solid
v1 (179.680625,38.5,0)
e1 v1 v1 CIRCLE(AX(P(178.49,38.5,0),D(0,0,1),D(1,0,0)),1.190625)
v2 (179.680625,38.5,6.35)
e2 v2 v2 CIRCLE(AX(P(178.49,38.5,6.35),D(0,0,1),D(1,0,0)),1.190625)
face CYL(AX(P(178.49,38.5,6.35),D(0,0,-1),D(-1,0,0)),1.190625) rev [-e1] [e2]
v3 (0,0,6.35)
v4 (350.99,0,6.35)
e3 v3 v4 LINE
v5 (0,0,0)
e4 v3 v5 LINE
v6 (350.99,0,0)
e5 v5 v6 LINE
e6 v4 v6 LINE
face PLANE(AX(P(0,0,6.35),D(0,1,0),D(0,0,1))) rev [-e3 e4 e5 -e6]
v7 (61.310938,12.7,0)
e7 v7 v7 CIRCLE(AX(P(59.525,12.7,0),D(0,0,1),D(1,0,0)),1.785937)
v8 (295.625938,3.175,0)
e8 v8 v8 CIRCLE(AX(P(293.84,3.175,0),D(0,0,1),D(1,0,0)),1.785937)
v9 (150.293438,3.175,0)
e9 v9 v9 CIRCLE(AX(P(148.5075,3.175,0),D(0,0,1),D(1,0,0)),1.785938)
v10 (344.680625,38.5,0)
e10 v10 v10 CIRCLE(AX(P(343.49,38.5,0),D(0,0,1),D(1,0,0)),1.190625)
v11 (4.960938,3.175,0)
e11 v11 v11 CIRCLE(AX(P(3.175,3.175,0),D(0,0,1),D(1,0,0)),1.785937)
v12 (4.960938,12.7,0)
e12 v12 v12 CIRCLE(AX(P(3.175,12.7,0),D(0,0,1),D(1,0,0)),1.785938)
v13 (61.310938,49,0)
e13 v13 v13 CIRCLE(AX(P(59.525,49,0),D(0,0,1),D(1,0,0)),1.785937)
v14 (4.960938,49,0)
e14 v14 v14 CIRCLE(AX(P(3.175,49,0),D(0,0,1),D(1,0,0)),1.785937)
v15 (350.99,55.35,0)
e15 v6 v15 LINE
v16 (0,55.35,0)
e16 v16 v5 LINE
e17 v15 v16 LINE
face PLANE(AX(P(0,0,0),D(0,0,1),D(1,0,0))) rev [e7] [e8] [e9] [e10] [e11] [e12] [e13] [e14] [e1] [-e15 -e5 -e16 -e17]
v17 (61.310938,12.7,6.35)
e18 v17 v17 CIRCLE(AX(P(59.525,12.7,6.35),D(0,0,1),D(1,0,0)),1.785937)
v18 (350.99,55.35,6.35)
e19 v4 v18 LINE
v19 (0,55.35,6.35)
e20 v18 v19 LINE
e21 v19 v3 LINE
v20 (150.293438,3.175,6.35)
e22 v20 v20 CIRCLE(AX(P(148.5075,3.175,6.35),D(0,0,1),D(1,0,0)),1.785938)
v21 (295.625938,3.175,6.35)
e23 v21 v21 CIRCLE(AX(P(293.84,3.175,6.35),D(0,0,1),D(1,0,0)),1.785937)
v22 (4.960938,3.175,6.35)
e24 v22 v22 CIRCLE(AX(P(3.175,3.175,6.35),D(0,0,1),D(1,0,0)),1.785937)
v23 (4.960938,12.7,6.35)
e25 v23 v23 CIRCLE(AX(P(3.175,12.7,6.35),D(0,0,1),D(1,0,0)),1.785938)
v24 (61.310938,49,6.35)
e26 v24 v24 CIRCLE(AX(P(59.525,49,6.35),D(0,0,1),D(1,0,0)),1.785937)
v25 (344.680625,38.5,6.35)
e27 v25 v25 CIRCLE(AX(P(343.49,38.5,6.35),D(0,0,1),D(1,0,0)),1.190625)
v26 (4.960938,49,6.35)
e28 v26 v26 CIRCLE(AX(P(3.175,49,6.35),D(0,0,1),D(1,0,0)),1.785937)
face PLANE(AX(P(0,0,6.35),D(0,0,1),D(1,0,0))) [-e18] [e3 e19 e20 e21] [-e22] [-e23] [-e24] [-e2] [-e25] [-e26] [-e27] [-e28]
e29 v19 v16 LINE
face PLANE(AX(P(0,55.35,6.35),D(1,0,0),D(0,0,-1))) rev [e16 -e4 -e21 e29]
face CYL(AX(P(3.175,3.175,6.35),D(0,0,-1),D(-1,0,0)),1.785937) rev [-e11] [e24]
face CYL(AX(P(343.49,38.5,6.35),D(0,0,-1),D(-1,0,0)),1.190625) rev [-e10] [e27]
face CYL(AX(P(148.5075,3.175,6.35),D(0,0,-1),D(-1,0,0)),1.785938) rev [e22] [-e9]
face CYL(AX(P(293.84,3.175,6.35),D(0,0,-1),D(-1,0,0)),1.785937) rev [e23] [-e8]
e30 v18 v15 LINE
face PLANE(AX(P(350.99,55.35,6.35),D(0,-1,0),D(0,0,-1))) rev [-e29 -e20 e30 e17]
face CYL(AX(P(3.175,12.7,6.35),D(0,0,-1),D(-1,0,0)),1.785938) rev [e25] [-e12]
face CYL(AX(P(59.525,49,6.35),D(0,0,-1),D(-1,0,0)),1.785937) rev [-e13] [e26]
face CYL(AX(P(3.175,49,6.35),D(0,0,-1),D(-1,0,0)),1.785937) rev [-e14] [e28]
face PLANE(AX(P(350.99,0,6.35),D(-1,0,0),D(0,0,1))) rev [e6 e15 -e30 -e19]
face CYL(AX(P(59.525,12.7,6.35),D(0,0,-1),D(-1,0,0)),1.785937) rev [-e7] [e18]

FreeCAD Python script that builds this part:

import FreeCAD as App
import Part
import Sketcher
Q = App.Units.Quantity


def add_polygon(sketch, points):
    """Adds a closed chain of lines whose ends are joined by coincident constraints."""
    first, n = sketch.GeometryCount, len(points)
    for a, b in zip(points, points[1:] + points[:1]):
        sketch.addGeometry(Part.LineSegment(App.Vector(*a, 0), App.Vector(*b, 0)), False)
    for i in range(n):
        sketch.addConstraint(Sketcher.Constraint("Coincident", first + i, 2, first + (i + 1) % n, 1))

doc = App.newDocument("Part")
body = doc.addObject("PartDesign::Body", "Body")

sketch1 = doc.addObject("Sketcher::SketchObject", "Sketch")
body.addObject(sketch1)
sketch1.AttachmentSupport = (doc.XY_Plane, [""])
sketch1.MapMode = "FlatFace"
add_polygon(sketch1, [(0, 55.35), (0, 0), (350.99, 0), (350.99, 55.35)])
sketch1.addGeometry(Part.Circle(App.Vector(3.175, 3.175, 0), App.Vector(0, 0, 1), 1.785937), False)
sketch1.addGeometry(Part.Circle(App.Vector(3.175, 12.7, 0), App.Vector(0, 0, 1), 1.785937), False)
sketch1.addGeometry(Part.Circle(App.Vector(59.525, 12.7, 0), App.Vector(0, 0, 1), 1.785937), False)
sketch1.addGeometry(Part.Circle(App.Vector(148.5075, 3.175, 0), App.Vector(0, 0, 1), 1.785937), False)
sketch1.addGeometry(Part.Circle(App.Vector(293.84, 3.175, 0), App.Vector(0, 0, 1), 1.785937), False)
sketch1.addGeometry(Part.Circle(App.Vector(3.175, 49, 0), App.Vector(0, 0, 1), 1.785937), False)
sketch1.addGeometry(Part.Circle(App.Vector(59.525, 49, 0), App.Vector(0, 0, 1), 1.785937), False)
sketch1.addGeometry(Part.Circle(App.Vector(178.49, 38.5, 0), App.Vector(0, 0, 1), 1.190625), False)
sketch1.addGeometry(Part.Circle(App.Vector(343.49, 38.5, 0), App.Vector(0, 0, 1), 1.190625), False)
sketch1.addConstraint([
    Sketcher.Constraint("Vertical", 0),
    Sketcher.Constraint("Horizontal", 1),
    Sketcher.Constraint("Vertical", 2),
    Sketcher.Constraint("Horizontal", 3),
    Sketcher.Constraint("Coincident", 0, 2, -1, 1),
    Sketcher.Constraint("Equal", 4, 5),
    Sketcher.Constraint("Equal", 5, 6),
    Sketcher.Constraint("Equal", 6, 7),
    Sketcher.Constraint("Equal", 7, 8),
    Sketcher.Constraint("Equal", 8, 9),
    Sketcher.Constraint("Equal", 9, 10),
    Sketcher.Constraint("Equal", 11, 12),
    Sketcher.Constraint("Horizontal", 5, 3, 6, 3),
    Sketcher.Constraint("Horizontal", 4, 3, 7, 3),
    Sketcher.Constraint("Horizontal", 7, 3, 8, 3),
    Sketcher.Constraint("Horizontal", 9, 3, 10, 3),
    Sketcher.Constraint("Horizontal", 11, 3, 12, 3),
    Sketcher.Constraint("Vertical", 4, 3, 5, 3),
    Sketcher.Constraint("Vertical", 5, 3, 9, 3),
    Sketcher.Constraint("Vertical", 6, 3, 10, 3),
    Sketcher.Constraint("Diameter", 4, Q("0.140625 in")),
    Sketcher.Constraint("Diameter", 11, Q("0.09375 in")),
    Sketcher.Constraint("DistanceY", -1, 1, 5, 3, Q("0.5 in")),
    Sketcher.Constraint("DistanceX", 8, 3, 1, 2, Q("2.25 in")),
    Sketcher.Constraint("DistanceY", 9, 3, 3, 2, Q("0.25 in")),
    Sketcher.Constraint("DistanceX", -1, 1, 4, 3, Q("0.125 in")),
    Sketcher.Constraint("DistanceY", -1, 1, 4, 3, Q("0.125 in")),
    Sketcher.Constraint("DistanceX", 6, 3, 8, 3, Q("9.225 in")),
    Sketcher.Constraint("DistanceX", 1, 1, 1, 2, Q("350.99 mm")),
    Sketcher.Constraint("DistanceY", 0, 2, 0, 1, Q("55.35 mm")),
    Sketcher.Constraint("DistanceX", -1, 1, 7, 3, Q("148.5075 mm")),
    Sketcher.Constraint("DistanceX", -1, 1, 11, 3, Q("178.49 mm")),
    Sketcher.Constraint("DistanceY", -1, 1, 11, 3, Q("38.5 mm")),
    Sketcher.Constraint("DistanceX", -1, 1, 12, 3, Q("343.49 mm")),
])
pad1 = doc.addObject("PartDesign::Pad", "Pad")
body.addObject(pad1)
pad1.Profile = sketch1
pad1.Length = Q("0.25 in")

doc.recompute()
